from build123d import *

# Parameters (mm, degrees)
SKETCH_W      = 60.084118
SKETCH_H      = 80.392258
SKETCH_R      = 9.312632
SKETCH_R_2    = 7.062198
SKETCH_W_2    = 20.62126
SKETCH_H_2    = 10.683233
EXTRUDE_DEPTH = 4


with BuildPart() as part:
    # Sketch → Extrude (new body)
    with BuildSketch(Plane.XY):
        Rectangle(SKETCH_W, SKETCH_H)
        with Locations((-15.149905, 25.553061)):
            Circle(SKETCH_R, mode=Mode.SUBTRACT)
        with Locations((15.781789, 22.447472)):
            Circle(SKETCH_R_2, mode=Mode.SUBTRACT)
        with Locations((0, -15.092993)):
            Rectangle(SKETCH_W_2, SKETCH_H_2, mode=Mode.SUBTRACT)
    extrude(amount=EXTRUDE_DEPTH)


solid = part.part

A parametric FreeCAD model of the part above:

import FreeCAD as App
import Part
import Sketcher
from FreeCAD import Vector
Q = App.Units.Quantity

doc = App.newDocument("Part")
params = doc.addObject("Spreadsheet::Sheet", "Params")
for row, (alias, value) in enumerate([
    ("pad1_length", "4 mm"),
], start=1):
    params.set(f"A{row}", alias)
    params.set(f"B{row}", "=" + value)
    params.setAlias(f"B{row}", alias)

body = doc.addObject("PartDesign::Body", "Body")

# Sketch on XY plane
sketch1 = doc.addObject("Sketcher::SketchObject", "Sketch")
body.addObject(sketch1)
sketch1.AttachmentSupport = (doc.XY_Plane, [""])
sketch1.MapMode = "FlatFace"
sketch1.addGeometry(Part.LineSegment(Vector(-30.042059, 40.196129, 0), Vector(-30.042059, -40.196129, 0)), False)
sketch1.addGeometry(Part.LineSegment(Vector(-30.042059, -40.196129, 0), Vector(30.042059, -40.196129, 0)), False)
sketch1.addGeometry(Part.LineSegment(Vector(30.042059, -40.196129, 0), Vector(30.042059, 40.196129, 0)), False)
sketch1.addGeometry(Part.LineSegment(Vector(30.042059, 40.196129, 0), Vector(-30.042059, 40.196129, 0)), False)
sketch1.addGeometry(Part.LineSegment(Vector(10.31063, -20.43461, 0), Vector(-10.31063, -20.43461, 0)), False)
sketch1.addGeometry(Part.LineSegment(Vector(-10.31063, -20.43461, 0), Vector(-10.31063, -9.751376, 0)), False)
sketch1.addGeometry(Part.LineSegment(Vector(-10.31063, -9.751376, 0), Vector(10.31063, -9.751376, 0)), False)
sketch1.addGeometry(Part.LineSegment(Vector(10.31063, -9.751376, 0), Vector(10.31063, -20.43461, 0)), False)
sketch1.addGeometry(Part.Circle(Vector(-15.149905, 25.553061, 0), Vector(0, 0, 1), 9.312632), False)
sketch1.addGeometry(Part.Circle(Vector(15.781789, 22.447472, 0), Vector(0, 0, 1), 7.062198), False)
sketch1.addConstraint(Sketcher.Constraint("Coincident", 0, 2, 1, 1))
sketch1.addConstraint(Sketcher.Constraint("Coincident", 1, 2, 2, 1))
sketch1.addConstraint(Sketcher.Constraint("Coincident", 2, 2, 3, 1))
sketch1.addConstraint(Sketcher.Constraint("Coincident", 3, 2, 0, 1))
sketch1.addConstraint(Sketcher.Constraint("Coincident", 4, 2, 5, 1))
sketch1.addConstraint(Sketcher.Constraint("Coincident", 5, 2, 6, 1))
sketch1.addConstraint(Sketcher.Constraint("Coincident", 6, 2, 7, 1))
sketch1.addConstraint(Sketcher.Constraint("Coincident", 7, 2, 4, 1))
sketch1.addConstraint(Sketcher.Constraint("Vertical", 0))
sketch1.addConstraint(Sketcher.Constraint("Horizontal", 1))
sketch1.addConstraint(Sketcher.Constraint("Vertical", 2))
sketch1.addConstraint(Sketcher.Constraint("Horizontal", 3))
sketch1.addConstraint(Sketcher.Constraint("Horizontal", 4))
sketch1.addConstraint(Sketcher.Constraint("Vertical", 5))
sketch1.addConstraint(Sketcher.Constraint("Horizontal", 6))
sketch1.addConstraint(Sketcher.Constraint("Vertical", 7))
sketch1.addConstraint(Sketcher.Constraint("Symmetric", 0, 2, 2, 2, -1, 1))
sketch1.addConstraint(Sketcher.Constraint("Diameter", 8, Q("18.625264 mm")))
sketch1.addConstraint(Sketcher.Constraint("Diameter", 9, Q("14.124396 mm")))
sketch1.addConstraint(Sketcher.Constraint("DistanceX", 4, 2, 4, 1, Q("20.62126 mm")))
sketch1.addConstraint(Sketcher.Constraint("DistanceY", 0, 2, 0, 1, Q("80.392258 mm")))
sketch1.addConstraint(Sketcher.Constraint("DistanceY", 0, 2, 9, 3, Q("62.643601 mm")))
sketch1.addConstraint(Sketcher.Constraint("DistanceX", 1, 1, 1, 2, Q("60.084118 mm")))
sketch1.addConstraint(Sketcher.Constraint("DistanceY", 5, 1, 5, 2, Q("10.683233 mm")))
sketch1.addConstraint(Sketcher.Constraint("DistanceY", -1, 1, 8, 3, Q("25.553061 mm")))
sketch1.addConstraint(Sketcher.Constraint("DistanceX", -1, 1, 9, 3, Q("15.781789 mm")))
sketch1.addConstraint(Sketcher.Constraint("DistanceX", 4, 2, -1, 1, Q("10.31063 mm")))
sketch1.addConstraint(Sketcher.Constraint("DistanceY", 4, 2, -1, 1, Q("20.43461 mm")))
sketch1.addConstraint(Sketcher.Constraint("DistanceX", 8, 3, -1, 1, Q("15.149905 mm")))
pad1 = doc.addObject("PartDesign::Pad", "Pad")
body.addObject(pad1)
pad1.Profile = sketch1
pad1.setExpression("Length", "Params.pad1_length")

doc.recompute()
